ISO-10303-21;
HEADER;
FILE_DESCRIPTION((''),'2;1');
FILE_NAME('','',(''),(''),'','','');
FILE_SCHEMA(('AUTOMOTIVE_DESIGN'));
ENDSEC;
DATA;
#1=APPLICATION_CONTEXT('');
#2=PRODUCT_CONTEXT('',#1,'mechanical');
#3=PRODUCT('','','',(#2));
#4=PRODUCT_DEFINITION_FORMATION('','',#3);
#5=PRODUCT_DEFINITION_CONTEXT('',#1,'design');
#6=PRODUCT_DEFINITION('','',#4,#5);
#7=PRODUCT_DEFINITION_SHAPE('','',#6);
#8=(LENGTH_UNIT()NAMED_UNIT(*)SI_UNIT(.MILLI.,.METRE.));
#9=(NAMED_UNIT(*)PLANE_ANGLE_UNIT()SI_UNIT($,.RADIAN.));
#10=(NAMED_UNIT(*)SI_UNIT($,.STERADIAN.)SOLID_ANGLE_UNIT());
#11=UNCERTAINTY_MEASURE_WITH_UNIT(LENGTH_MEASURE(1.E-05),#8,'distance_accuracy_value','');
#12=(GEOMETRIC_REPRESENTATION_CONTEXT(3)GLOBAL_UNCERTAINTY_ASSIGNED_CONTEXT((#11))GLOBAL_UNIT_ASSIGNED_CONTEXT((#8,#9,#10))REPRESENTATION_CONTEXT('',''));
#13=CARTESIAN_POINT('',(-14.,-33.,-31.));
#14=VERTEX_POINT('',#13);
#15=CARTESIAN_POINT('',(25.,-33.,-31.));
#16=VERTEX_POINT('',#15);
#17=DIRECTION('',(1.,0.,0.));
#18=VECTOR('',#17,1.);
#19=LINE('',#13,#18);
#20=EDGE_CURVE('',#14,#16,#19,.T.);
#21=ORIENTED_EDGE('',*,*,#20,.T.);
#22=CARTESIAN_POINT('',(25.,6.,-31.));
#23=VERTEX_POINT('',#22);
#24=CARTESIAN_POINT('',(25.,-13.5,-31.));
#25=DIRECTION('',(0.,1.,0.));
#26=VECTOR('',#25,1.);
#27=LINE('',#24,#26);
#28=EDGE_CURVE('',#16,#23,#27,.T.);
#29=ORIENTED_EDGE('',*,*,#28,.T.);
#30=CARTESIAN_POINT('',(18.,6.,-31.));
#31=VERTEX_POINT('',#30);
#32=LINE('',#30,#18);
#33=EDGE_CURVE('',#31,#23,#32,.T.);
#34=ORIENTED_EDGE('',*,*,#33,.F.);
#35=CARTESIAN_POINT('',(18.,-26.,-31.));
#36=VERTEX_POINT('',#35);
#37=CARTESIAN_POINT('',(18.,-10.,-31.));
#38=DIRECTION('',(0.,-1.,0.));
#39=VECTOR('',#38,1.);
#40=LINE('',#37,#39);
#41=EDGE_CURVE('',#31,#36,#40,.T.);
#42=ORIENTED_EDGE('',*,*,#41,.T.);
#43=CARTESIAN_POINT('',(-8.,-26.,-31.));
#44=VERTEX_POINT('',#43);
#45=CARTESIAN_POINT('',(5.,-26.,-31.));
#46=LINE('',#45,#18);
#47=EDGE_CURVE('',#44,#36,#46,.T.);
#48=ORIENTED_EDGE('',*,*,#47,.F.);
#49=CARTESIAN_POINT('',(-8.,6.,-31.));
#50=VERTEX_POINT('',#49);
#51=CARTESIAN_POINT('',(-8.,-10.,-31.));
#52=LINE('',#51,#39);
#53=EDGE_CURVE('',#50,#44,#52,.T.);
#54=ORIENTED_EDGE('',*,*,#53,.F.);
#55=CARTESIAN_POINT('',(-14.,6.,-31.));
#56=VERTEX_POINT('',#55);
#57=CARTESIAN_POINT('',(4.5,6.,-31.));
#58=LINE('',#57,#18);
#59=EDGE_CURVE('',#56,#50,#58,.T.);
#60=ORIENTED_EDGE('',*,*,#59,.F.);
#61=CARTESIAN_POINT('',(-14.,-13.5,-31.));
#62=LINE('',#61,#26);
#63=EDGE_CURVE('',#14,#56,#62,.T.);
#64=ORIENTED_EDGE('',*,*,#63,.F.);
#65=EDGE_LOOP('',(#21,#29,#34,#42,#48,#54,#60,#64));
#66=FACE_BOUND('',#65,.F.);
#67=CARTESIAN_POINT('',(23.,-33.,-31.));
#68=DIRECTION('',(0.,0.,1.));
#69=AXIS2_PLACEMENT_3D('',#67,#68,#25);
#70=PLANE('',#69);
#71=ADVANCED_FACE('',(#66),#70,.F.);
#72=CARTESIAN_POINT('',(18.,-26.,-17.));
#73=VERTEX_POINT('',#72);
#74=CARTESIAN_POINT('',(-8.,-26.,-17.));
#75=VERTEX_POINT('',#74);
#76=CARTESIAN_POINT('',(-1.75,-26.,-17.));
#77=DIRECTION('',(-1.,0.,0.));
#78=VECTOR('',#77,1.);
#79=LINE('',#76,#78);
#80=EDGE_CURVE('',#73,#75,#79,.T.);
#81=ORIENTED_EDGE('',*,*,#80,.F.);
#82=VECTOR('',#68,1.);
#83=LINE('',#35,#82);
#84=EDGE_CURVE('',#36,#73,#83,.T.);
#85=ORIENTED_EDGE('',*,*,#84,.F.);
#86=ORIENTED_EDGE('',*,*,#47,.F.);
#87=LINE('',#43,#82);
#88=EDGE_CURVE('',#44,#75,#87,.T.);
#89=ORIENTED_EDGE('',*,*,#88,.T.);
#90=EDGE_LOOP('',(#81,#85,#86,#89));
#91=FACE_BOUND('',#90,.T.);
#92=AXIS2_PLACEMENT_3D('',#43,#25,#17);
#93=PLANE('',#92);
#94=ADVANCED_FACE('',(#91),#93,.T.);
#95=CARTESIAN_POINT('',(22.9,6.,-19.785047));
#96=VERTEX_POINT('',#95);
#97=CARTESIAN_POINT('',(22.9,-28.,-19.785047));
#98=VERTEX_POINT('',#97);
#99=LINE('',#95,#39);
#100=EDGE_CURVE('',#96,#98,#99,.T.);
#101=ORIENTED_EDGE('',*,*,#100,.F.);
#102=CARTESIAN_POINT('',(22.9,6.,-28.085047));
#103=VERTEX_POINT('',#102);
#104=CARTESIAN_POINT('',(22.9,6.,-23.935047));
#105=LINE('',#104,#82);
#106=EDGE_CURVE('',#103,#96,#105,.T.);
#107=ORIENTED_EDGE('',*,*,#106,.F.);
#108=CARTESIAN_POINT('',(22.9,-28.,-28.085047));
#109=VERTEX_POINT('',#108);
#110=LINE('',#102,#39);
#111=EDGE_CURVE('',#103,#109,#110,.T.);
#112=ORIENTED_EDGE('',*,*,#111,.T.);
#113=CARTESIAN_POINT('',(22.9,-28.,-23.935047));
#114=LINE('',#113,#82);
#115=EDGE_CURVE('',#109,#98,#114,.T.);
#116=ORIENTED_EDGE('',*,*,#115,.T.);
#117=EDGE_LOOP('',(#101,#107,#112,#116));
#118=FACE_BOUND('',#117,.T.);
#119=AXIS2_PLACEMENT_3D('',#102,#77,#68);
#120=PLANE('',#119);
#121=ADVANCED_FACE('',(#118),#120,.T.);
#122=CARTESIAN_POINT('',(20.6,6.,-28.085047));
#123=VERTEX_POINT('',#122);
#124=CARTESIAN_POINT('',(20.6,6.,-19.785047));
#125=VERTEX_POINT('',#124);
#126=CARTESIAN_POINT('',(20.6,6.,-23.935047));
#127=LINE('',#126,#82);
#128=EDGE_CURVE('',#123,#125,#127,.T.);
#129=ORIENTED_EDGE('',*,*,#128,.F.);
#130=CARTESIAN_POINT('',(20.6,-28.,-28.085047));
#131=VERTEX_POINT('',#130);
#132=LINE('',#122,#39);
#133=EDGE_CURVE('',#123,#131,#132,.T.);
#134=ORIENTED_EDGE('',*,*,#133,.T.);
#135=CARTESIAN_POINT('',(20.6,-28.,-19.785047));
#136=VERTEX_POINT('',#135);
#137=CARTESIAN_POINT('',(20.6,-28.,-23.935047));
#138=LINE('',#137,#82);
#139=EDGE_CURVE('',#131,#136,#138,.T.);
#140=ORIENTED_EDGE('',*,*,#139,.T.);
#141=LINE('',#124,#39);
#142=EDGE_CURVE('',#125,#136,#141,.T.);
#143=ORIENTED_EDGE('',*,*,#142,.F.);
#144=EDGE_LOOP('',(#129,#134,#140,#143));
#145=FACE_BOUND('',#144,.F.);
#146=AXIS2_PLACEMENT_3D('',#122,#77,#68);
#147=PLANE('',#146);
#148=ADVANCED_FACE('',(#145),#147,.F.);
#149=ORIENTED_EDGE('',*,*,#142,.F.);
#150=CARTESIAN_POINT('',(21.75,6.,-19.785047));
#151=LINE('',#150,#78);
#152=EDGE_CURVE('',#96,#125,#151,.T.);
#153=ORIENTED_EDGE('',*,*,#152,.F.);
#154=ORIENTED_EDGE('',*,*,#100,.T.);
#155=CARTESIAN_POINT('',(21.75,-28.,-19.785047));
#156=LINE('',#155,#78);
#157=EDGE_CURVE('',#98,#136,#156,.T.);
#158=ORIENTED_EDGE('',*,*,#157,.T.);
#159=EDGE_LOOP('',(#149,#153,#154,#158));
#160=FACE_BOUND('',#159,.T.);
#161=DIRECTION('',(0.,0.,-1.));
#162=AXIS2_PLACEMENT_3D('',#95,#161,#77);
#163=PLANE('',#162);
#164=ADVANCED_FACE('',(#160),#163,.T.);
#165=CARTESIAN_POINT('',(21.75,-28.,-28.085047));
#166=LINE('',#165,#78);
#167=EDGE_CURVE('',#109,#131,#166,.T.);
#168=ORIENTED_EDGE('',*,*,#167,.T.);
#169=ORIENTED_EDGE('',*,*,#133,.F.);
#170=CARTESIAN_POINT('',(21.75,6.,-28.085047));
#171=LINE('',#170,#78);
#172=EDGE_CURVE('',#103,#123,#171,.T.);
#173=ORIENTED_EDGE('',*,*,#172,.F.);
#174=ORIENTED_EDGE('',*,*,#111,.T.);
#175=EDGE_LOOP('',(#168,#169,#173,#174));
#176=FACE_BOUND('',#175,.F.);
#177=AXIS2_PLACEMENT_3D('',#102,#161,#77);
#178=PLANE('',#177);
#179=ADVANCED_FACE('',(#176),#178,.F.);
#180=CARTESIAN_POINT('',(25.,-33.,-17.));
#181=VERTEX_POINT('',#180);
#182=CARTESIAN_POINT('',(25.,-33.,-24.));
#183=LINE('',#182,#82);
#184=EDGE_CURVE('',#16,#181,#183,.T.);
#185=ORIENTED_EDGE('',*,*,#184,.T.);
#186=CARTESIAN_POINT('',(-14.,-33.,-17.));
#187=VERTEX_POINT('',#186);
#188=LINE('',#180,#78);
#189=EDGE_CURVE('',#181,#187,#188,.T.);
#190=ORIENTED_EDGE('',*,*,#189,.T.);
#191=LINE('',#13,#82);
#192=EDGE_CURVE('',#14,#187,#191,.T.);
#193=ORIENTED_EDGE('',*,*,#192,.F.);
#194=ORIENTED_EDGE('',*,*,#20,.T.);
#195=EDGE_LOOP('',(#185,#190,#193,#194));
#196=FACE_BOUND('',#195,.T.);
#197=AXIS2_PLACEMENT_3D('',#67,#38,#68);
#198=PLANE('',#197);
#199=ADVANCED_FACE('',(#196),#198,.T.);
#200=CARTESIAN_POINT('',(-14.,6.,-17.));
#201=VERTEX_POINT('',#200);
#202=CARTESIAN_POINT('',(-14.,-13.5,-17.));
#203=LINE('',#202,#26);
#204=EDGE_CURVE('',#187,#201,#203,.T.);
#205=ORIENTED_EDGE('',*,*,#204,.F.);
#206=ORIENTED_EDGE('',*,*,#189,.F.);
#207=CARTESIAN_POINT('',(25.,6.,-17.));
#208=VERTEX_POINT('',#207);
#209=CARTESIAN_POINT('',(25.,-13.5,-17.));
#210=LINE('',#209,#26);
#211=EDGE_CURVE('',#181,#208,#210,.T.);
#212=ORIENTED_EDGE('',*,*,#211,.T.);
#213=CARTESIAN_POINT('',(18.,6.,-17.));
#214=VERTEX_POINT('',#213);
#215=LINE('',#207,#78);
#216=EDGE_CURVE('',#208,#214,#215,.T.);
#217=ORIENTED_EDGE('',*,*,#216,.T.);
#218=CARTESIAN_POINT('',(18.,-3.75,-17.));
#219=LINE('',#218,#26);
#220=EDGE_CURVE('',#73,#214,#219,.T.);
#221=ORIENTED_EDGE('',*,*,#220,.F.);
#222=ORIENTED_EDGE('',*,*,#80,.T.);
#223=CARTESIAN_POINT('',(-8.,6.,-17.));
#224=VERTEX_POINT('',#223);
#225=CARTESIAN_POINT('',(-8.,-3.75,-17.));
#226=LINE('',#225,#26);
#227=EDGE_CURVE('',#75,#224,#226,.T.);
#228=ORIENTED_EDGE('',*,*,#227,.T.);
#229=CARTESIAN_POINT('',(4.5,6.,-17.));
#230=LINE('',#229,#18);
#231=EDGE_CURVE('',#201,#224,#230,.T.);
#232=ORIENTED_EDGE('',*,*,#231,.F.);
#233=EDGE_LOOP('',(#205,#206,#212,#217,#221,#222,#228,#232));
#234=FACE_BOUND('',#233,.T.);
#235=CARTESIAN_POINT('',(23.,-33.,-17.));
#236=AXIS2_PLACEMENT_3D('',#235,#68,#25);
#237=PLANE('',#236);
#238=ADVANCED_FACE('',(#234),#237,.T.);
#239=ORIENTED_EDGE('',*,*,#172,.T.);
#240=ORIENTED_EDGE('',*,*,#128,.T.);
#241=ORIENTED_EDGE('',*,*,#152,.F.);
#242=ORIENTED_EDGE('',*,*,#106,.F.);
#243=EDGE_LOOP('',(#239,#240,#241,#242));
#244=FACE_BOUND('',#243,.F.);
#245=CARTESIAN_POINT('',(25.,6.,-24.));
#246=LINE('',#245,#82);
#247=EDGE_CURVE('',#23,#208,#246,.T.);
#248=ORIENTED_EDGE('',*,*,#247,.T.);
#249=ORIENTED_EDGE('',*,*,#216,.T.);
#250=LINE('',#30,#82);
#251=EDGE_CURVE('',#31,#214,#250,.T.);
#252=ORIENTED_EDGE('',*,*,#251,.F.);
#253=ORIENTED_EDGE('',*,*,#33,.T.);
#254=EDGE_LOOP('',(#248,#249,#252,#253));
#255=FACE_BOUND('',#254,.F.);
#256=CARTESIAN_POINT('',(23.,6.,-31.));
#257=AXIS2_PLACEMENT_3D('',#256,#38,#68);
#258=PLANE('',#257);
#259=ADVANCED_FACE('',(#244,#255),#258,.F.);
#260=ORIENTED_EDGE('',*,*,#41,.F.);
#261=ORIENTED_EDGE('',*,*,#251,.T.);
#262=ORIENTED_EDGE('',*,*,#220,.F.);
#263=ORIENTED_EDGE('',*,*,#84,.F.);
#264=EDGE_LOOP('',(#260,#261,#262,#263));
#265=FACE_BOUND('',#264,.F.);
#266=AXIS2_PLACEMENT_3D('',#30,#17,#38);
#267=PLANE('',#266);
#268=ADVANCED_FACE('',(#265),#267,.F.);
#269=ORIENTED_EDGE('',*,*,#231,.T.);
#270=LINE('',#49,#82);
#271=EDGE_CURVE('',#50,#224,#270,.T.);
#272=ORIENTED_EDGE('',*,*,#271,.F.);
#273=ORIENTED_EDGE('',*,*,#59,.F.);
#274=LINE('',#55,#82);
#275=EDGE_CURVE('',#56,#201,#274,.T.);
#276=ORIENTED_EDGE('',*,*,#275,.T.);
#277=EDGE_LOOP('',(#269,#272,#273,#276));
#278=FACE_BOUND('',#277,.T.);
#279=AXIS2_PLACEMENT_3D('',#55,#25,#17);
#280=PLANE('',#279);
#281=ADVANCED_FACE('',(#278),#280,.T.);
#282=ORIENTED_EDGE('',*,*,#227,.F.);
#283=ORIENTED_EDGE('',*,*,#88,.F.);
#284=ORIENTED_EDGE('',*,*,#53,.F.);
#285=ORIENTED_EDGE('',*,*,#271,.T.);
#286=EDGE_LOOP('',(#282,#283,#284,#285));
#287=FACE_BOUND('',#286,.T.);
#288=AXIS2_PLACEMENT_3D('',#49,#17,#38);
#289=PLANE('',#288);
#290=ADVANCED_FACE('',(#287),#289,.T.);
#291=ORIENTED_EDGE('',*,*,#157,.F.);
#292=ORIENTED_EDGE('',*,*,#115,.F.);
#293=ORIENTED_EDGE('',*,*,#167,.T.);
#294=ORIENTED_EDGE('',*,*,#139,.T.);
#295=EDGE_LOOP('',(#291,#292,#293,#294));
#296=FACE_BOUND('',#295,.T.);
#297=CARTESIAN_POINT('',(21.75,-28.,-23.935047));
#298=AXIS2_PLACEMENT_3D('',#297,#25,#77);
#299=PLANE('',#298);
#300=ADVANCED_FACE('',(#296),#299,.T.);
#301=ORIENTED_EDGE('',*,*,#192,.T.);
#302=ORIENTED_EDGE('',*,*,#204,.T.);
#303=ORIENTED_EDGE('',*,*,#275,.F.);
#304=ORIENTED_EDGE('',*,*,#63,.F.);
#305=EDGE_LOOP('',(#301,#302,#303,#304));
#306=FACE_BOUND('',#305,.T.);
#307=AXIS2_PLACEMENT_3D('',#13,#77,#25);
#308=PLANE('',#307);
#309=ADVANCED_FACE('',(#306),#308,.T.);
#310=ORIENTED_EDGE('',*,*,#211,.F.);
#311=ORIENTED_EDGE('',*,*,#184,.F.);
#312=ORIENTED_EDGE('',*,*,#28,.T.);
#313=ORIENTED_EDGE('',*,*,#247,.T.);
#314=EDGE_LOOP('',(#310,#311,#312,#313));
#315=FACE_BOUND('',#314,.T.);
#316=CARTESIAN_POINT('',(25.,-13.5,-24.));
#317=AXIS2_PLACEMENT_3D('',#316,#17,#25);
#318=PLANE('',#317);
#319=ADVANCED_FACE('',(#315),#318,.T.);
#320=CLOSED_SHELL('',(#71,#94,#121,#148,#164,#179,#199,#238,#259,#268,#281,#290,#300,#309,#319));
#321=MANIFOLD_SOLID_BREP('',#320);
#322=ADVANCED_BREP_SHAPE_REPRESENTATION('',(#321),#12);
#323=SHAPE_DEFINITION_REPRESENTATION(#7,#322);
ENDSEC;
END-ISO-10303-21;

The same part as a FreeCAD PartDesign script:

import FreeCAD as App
import Part
import Sketcher
from FreeCAD import Vector
Q = App.Units.Quantity


def add_polygon(sketch, points):
    """Adds a closed chain of lines whose ends are joined by coincident constraints."""
    first, n = sketch.GeometryCount, len(points)
    for a, b in zip(points, points[1:] + points[:1]):
        sketch.addGeometry(Part.LineSegment(App.Vector(*a, 0), App.Vector(*b, 0)), False)
    for i in range(n):
        sketch.addConstraint(Sketcher.Constraint("Coincident", first + i, 2, first + (i + 1) % n, 1))

doc = App.newDocument("Part")
body = doc.addObject("PartDesign::Body", "Body")

sketch1 = doc.addObject("Sketcher::SketchObject", "Sketch")
body.addObject(sketch1)
sketch1.AttachmentSupport = (doc.XY_Plane, [""])
sketch1.MapMode = "FlatFace"
sketch1.AttachmentOffset = App.Placement(Vector(0, 0, -31), App.Rotation())
add_polygon(sketch1, [(-14, 6), (-14, -33), (23, -33), (23, 6)])
sketch1.addConstraint([
    Sketcher.Constraint("Vertical", 0),
    Sketcher.Constraint("Horizontal", 1),
    Sketcher.Constraint("Vertical", 2),
    Sketcher.Constraint("Horizontal", 3),
    Sketcher.Constraint("DistanceX", 1, 1, 1, 2, Q("37 mm")),
    Sketcher.Constraint("DistanceY", 0, 2, 0, 1, Q("39 mm")),
    Sketcher.Constraint("DistanceX", 0, 2, -1, 1, Q("14 mm")),
    Sketcher.Constraint("DistanceY", 0, 2, -1, 1, Q("33 mm")),
])
pad1 = doc.addObject("PartDesign::Pad", "Pad")
body.addObject(pad1)
pad1.Profile = sketch1
pad1.Length = 14

sketch2 = doc.addObject("Sketcher::SketchObject", "Sketch001")
body.addObject(sketch2)
sketch2.AttachmentSupport = (doc.XY_Plane, [""])
sketch2.MapMode = "FlatFace"
sketch2.AttachmentOffset = App.Placement(Vector(0, 0, -31), App.Rotation())
add_polygon(sketch2, [(-8, -26), (-8, 6), (18, 6), (18, -26)])
sketch2.addConstraint([
    Sketcher.Constraint("Vertical", 0),
    Sketcher.Constraint("Horizontal", 1),
    Sketcher.Constraint("Vertical", 2),
    Sketcher.Constraint("Horizontal", 3),
    Sketcher.Constraint("DistanceX", 1, 1, 1, 2, Q("26 mm")),
    Sketcher.Constraint("DistanceY", 0, 1, 0, 2, Q("32 mm")),
    Sketcher.Constraint("DistanceX", 0, 2, -1, 1, Q("8 mm")),
    Sketcher.Constraint("DistanceY", -1, 1, 0, 2, Q("6 mm")),
])
pocket1 = doc.addObject("PartDesign::Pocket", "Pocket")
body.addObject(pocket1)
pocket1.Profile = sketch2
pocket1.Length = 15
pocket1.Reversed = True

sketch3 = doc.addObject("Sketcher::SketchObject", "Sketch002")
body.addObject(sketch3)
sketch3.AttachmentSupport = (doc.XZ_Plane, [""])
sketch3.MapMode = "FlatFace"
sketch3.AttachmentOffset = App.Placement(Vector(0, 0, -6), App.Rotation())
add_polygon(sketch3, [(22.9, -19.785047), (22.9, -28.085047), (20.6, -28.085047), (20.6, -19.785047)])
sketch3.addConstraint([
    Sketcher.Constraint("Vertical", 0),
    Sketcher.Constraint("Horizontal", 1),
    Sketcher.Constraint("Vertical", 2),
    Sketcher.Constraint("Horizontal", 3),
    Sketcher.Constraint("DistanceX", 1, 2, 1, 1, Q("2.3 mm")),
    Sketcher.Constraint("DistanceY", 0, 2, 0, 1, Q("8.3 mm")),
    Sketcher.Constraint("DistanceX", -1, 1, 0, 2, Q("22.9 mm")),
    Sketcher.Constraint("DistanceY", 0, 2, -1, 1, Q("28.085047 mm")),
])
pocket2 = doc.addObject("PartDesign::Pocket", "Pocket001")
body.addObject(pocket2)
pocket2.Profile = sketch3
pocket2.Length = 34
pocket2.Reversed = True

sketch4 = doc.addObject("Sketcher::SketchObject", "Sketch003")
body.addObject(sketch4)
sketch4.AttachmentSupport = (doc.YZ_Plane, [""])
sketch4.MapMode = "FlatFace"
sketch4.AttachmentOffset = App.Placement(Vector(0, 0, 23), App.Rotation())
add_polygon(sketch4, [(-33, -17), (-33, -31), (6, -31), (6, -17)])
sketch4.addConstraint([
    Sketcher.Constraint("Vertical", 0),
    Sketcher.Constraint("Horizontal", 1),
    Sketcher.Constraint("Vertical", 2),
    Sketcher.Constraint("Horizontal", 3),
    Sketcher.Constraint("DistanceX", 1, 1, 1, 2, Q("39 mm")),
    Sketcher.Constraint("DistanceY", 0, 2, 0, 1, Q("14 mm")),
    Sketcher.Constraint("DistanceX", 0, 2, -1, 1, Q("33 mm")),
    Sketcher.Constraint("DistanceY", 0, 2, -1, 1, Q("31 mm")),
])
pad2 = doc.addObject("PartDesign::Pad", "Pad001")
body.addObject(pad2)
pad2.Profile = sketch4
pad2.Length = 2

doc.recompute()
